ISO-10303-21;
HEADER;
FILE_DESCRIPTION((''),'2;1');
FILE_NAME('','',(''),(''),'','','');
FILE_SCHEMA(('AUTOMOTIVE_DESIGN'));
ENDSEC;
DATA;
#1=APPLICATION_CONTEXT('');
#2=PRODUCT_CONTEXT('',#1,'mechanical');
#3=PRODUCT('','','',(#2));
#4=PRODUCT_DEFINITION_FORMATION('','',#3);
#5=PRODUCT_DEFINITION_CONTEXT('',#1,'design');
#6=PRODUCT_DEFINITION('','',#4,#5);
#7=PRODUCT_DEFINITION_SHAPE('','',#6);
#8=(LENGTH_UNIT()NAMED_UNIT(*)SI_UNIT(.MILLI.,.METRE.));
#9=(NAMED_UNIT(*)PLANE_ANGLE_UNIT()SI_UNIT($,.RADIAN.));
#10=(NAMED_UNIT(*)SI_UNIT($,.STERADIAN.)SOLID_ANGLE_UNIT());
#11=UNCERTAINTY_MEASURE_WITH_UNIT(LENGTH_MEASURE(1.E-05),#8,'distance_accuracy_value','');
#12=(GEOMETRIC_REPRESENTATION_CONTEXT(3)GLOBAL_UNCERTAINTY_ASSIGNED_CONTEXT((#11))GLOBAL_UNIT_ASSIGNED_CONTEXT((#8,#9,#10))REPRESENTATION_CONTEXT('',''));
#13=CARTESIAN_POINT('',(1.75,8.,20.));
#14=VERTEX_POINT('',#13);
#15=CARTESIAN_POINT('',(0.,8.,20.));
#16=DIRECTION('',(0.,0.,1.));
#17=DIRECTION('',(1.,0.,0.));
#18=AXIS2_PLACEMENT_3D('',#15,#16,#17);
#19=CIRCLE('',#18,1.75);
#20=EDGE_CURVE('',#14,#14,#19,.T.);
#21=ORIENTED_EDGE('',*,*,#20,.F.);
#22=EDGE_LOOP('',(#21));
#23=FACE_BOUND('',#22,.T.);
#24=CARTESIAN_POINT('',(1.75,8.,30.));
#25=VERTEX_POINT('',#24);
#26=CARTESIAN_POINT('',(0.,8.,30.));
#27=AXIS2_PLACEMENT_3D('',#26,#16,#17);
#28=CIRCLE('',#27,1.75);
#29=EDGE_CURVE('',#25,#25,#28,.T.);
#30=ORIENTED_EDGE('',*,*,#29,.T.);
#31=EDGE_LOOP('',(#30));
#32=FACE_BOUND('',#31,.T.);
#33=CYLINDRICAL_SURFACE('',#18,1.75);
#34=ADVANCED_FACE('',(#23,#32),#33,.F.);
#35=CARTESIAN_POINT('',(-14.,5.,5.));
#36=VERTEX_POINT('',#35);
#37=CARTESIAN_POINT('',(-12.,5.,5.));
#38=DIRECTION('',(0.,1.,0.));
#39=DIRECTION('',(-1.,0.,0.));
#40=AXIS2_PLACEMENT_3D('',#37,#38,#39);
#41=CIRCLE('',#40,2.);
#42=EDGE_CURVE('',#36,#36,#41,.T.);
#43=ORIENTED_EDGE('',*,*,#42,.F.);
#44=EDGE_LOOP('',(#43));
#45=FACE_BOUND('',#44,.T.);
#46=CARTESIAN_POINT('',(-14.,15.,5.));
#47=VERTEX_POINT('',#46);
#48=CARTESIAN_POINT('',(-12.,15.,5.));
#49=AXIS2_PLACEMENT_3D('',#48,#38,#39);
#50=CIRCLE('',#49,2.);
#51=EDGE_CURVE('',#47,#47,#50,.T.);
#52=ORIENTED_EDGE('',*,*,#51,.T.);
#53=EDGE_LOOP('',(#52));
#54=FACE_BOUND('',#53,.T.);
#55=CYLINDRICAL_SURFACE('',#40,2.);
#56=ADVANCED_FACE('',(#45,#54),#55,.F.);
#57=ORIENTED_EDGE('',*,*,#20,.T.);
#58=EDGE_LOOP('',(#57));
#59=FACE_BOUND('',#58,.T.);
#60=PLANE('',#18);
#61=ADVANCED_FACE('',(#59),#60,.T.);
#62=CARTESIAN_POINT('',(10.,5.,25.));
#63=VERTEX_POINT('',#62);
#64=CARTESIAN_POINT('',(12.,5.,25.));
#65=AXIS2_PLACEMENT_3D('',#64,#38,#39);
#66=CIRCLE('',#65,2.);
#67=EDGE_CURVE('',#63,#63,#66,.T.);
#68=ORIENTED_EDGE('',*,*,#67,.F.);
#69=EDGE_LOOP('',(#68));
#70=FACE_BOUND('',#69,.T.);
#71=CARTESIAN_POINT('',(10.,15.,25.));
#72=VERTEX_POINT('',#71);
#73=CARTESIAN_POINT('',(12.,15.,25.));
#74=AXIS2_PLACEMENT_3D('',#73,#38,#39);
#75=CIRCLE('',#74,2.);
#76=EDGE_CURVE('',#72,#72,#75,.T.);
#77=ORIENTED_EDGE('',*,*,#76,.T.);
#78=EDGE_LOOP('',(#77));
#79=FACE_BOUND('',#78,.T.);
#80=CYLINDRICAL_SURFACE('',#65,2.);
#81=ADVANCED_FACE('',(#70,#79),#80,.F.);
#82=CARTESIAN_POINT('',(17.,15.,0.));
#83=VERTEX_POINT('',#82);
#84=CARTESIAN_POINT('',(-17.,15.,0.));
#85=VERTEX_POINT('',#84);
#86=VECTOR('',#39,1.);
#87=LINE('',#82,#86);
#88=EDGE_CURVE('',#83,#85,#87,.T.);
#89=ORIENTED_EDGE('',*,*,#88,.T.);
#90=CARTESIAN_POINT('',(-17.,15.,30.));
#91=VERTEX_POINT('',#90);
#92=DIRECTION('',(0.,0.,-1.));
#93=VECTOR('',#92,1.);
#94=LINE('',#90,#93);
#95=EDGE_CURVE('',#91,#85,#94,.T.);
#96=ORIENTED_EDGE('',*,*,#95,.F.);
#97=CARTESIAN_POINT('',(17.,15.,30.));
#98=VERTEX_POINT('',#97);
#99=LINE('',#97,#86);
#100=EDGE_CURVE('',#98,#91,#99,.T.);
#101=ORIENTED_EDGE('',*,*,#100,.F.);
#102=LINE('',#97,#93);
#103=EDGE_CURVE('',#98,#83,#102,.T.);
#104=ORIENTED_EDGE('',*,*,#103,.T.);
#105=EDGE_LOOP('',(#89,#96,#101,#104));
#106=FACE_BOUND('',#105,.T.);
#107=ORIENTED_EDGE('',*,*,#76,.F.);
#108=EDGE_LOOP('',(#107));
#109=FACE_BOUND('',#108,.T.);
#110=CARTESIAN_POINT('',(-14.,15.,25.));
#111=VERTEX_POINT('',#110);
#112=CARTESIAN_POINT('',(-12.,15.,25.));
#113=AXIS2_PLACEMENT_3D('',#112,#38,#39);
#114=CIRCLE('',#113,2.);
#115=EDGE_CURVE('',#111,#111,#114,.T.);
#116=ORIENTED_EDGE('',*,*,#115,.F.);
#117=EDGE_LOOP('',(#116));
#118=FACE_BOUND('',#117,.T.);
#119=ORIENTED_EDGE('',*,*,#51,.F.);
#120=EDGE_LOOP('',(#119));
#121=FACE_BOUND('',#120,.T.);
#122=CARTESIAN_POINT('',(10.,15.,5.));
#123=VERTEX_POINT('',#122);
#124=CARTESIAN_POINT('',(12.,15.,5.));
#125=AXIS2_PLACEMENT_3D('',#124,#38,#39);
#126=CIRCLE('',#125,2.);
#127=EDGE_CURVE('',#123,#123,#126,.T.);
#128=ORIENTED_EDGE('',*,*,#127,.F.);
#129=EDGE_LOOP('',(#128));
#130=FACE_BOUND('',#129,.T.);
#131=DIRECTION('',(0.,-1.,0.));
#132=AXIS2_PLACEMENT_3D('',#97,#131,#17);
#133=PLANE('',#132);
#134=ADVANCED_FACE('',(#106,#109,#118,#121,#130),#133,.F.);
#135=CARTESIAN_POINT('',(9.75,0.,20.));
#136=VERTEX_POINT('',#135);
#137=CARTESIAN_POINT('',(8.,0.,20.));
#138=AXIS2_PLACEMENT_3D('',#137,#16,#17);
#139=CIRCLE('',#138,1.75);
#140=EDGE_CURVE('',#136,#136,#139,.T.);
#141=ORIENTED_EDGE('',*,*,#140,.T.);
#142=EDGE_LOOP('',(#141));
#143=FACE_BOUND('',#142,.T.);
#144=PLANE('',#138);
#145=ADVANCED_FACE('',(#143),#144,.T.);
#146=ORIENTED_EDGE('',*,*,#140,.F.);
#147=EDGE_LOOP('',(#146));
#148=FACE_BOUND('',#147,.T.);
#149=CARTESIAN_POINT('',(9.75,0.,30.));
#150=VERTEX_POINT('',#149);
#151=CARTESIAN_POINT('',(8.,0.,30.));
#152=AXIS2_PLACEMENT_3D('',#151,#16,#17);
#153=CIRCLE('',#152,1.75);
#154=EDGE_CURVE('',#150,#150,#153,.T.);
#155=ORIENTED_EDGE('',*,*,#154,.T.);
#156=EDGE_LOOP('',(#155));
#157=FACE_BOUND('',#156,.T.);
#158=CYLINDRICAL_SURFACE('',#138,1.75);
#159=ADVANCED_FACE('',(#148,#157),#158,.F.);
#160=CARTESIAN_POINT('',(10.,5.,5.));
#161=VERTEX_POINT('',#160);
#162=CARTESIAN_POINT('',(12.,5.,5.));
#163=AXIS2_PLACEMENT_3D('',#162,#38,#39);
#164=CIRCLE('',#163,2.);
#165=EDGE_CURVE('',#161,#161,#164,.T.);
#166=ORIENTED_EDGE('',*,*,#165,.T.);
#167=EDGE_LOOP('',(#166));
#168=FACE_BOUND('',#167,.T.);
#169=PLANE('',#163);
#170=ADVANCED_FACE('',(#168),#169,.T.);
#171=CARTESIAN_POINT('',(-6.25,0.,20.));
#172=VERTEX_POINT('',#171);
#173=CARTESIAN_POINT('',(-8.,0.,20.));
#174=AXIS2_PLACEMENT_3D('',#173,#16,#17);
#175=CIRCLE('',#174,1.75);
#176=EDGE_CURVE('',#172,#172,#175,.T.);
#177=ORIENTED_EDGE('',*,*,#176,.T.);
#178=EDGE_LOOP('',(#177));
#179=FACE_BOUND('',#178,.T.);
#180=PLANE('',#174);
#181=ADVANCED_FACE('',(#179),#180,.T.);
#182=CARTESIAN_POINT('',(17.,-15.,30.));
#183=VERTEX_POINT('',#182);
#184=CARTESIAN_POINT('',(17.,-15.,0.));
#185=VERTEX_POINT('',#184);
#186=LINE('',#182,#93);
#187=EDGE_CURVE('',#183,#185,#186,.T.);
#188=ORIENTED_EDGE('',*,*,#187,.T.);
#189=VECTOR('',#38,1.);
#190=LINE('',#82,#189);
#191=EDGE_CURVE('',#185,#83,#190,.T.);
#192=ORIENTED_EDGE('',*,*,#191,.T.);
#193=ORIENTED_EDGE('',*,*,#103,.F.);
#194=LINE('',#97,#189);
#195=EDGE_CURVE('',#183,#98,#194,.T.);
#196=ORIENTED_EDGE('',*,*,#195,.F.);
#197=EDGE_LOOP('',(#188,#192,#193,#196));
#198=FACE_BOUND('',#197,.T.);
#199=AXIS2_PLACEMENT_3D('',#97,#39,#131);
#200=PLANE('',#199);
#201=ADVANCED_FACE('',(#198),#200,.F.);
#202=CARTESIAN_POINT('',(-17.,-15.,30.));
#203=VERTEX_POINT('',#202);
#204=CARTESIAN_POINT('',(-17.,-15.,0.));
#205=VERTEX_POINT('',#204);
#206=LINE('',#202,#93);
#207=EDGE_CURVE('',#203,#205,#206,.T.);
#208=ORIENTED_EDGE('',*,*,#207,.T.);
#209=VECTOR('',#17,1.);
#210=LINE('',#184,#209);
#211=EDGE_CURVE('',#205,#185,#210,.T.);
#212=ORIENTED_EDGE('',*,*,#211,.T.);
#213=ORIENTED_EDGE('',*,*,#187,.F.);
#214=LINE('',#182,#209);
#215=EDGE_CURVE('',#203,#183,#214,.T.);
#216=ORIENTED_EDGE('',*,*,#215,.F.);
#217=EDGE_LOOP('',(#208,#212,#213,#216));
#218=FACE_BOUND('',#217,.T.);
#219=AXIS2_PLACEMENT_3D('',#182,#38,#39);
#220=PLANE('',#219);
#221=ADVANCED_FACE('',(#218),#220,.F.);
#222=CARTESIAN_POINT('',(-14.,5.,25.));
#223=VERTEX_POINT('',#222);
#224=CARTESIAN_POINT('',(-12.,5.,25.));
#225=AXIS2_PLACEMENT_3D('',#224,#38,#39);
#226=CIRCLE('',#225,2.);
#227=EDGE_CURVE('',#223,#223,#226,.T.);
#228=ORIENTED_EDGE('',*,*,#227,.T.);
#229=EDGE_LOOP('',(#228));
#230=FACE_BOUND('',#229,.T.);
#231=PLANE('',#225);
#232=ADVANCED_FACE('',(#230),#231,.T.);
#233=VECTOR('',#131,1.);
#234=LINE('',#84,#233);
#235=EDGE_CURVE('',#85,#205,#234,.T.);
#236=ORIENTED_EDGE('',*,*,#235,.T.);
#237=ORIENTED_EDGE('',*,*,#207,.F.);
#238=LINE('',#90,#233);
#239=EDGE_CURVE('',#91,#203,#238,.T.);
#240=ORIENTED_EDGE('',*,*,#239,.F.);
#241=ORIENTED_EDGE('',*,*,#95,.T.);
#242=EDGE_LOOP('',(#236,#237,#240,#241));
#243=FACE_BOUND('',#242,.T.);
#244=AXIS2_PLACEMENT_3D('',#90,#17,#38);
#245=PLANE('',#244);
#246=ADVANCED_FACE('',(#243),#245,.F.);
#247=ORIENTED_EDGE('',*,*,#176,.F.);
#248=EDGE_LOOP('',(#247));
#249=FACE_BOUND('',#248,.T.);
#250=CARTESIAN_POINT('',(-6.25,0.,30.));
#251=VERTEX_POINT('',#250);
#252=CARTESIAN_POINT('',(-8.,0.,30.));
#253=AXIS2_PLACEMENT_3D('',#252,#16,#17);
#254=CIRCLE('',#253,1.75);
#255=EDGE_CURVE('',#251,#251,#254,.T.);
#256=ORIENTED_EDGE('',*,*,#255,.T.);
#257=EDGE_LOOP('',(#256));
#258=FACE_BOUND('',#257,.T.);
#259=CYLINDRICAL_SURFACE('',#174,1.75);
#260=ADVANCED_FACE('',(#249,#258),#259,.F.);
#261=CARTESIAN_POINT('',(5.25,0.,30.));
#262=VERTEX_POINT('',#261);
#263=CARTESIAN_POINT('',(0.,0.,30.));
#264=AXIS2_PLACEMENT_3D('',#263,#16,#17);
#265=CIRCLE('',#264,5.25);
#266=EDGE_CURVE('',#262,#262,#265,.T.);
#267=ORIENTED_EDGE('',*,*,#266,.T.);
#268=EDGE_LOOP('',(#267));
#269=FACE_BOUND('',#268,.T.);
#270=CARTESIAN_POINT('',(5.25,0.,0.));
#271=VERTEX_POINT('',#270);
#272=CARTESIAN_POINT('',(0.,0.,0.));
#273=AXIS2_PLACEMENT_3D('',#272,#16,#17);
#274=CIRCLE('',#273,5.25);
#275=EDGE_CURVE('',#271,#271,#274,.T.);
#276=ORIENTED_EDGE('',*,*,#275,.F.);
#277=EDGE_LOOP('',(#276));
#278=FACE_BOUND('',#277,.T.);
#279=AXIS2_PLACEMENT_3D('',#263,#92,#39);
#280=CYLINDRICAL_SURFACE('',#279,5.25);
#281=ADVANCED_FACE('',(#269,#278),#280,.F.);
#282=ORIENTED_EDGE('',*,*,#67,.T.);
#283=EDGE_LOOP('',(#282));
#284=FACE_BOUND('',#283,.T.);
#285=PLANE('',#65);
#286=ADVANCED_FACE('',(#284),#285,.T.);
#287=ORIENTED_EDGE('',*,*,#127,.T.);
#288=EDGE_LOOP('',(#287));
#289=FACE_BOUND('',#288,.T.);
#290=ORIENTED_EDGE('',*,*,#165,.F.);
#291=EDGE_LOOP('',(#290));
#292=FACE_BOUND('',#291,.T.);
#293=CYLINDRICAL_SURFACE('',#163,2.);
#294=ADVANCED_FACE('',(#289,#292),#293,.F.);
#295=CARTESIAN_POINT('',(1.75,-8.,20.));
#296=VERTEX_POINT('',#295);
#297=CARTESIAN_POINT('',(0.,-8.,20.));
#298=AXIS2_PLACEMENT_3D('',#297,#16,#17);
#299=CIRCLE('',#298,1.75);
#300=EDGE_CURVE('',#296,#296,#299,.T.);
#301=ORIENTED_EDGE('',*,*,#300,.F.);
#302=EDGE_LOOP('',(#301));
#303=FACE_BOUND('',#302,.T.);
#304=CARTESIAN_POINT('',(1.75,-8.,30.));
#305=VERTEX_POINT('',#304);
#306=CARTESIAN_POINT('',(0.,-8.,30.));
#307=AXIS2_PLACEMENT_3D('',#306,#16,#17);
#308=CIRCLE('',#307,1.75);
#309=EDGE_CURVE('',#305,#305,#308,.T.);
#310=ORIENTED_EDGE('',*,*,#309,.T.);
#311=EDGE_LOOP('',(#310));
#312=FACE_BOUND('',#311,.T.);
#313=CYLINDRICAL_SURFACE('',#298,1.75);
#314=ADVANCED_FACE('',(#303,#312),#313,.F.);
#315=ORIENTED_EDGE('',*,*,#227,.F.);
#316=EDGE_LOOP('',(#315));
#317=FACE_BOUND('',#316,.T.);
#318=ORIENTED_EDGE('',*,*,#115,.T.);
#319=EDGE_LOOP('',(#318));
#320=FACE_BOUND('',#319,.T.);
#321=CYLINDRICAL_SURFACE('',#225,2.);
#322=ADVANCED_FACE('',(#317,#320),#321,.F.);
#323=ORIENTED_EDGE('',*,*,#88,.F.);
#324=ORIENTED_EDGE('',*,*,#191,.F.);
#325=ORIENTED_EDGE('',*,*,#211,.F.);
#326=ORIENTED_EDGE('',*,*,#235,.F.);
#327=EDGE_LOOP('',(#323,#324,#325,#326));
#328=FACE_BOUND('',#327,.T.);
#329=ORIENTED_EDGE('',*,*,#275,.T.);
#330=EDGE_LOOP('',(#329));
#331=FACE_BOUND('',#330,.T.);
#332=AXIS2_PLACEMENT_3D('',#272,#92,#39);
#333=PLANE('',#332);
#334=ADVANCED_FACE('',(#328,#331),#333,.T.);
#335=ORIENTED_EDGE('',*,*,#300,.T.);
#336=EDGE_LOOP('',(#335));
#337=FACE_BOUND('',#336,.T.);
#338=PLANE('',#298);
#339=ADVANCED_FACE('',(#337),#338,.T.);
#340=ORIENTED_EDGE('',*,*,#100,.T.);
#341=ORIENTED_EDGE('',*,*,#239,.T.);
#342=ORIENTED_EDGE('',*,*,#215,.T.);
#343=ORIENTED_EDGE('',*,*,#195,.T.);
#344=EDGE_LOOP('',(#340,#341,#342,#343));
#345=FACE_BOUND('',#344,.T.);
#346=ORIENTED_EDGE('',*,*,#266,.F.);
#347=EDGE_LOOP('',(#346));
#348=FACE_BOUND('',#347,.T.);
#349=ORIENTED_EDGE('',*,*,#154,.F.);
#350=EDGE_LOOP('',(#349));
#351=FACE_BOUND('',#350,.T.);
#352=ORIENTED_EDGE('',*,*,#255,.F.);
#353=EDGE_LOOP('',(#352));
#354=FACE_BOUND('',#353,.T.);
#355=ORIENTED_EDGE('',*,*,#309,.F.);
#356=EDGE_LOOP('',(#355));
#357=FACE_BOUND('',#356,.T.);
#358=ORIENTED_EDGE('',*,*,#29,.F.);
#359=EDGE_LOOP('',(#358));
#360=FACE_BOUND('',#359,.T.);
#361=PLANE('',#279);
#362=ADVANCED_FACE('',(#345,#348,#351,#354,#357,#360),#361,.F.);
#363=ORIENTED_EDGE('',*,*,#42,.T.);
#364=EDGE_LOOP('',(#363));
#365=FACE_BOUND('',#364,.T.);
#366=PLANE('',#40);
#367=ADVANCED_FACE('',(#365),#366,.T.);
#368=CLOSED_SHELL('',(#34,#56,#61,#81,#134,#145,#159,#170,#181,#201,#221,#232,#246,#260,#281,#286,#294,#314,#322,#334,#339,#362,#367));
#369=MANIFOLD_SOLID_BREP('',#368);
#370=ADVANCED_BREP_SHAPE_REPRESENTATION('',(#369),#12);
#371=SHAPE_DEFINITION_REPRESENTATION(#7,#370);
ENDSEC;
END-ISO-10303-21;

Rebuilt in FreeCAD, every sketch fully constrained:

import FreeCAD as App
import Part
import Sketcher

doc = App.newDocument("Part")
params = doc.addObject("Spreadsheet::Sheet", "Params")
for row, (alias, value) in enumerate([
    ("sketch1_diameter", "10.5 mm"),
    ("sketch1_width", "34 mm"),
    ("sketch1_height", "30 mm"),
    ("pad1_length", "30 mm"),
    ("sketch2_diameter", "3.5 mm"),
    ("pocket1_length", "10 mm"),
    ("sketch3_diameter", "4 mm"),
    ("pocket2_length", "10 mm"),
], start=1):
    params.set(f"A{row}", alias)
    params.set(f"B{row}", "=" + value)
    params.setAlias(f"B{row}", alias)

body = doc.addObject("PartDesign::Body", "Body")

# Sketch on XY plane
sketch1 = body.newObject("Sketcher::SketchObject", "Sketch")
sketch1.AttachmentSupport = (doc.getObject("XY_Plane"), [""])
sketch1.MapMode = "FlatFace"
sketch1.addGeometry([
    Part.LineSegment(App.Vector(-17, 15, 0), App.Vector(-17, -15, 0)),  # 0
    Part.LineSegment(App.Vector(-17, -15, 0), App.Vector(17, -15, 0)),  # 1
    Part.LineSegment(App.Vector(17, -15, 0), App.Vector(17, 15, 0)),  # 2
    Part.LineSegment(App.Vector(17, 15, 0), App.Vector(-17, 15, 0)),  # 3
    Part.Circle(App.Vector(0, 0, 0), App.Vector(0, 0, 1), 5),  # 4
], False)
sketch1.addConstraint([
    Sketcher.Constraint("Coincident", 0, 2, 1, 1),
    Sketcher.Constraint("Coincident", 1, 2, 2, 1),
    Sketcher.Constraint("Coincident", 2, 2, 3, 1),
    Sketcher.Constraint("Coincident", 3, 2, 0, 1),
    Sketcher.Constraint("Vertical", 0),
    Sketcher.Constraint("Horizontal", 1),
    Sketcher.Constraint("Vertical", 2),
    Sketcher.Constraint("Horizontal", 3),
    Sketcher.Constraint("Coincident", 4, 3, -1, 1),
    Sketcher.Constraint("Symmetric", 0, 2, 2, 2, -1, 1),
    Sketcher.Constraint("Diameter", 4, 10.5),
    Sketcher.Constraint("DistanceX", 1, 1, 1, 2, 34.0),
    Sketcher.Constraint("DistanceY", 0, 2, 0, 1, 30.0),
])
sketch1.setExpression("Constraints[10]", "Params.sketch1_diameter")
sketch1.setExpression("Constraints[11]", "Params.sketch1_width")
sketch1.setExpression("Constraints[12]", "Params.sketch1_height")
pad1 = body.newObject("PartDesign::Pad", "Pad")
pad1.Profile = sketch1
pad1.setExpression("Length", "Params.pad1_length")

# Sketch on XY plane
sketch2 = body.newObject("Sketcher::SketchObject", "Sketch001")
sketch2.AttachmentSupport = (doc.getObject("XY_Plane"), [""])
sketch2.MapMode = "FlatFace"
sketch2.AttachmentOffset = App.Placement(App.Vector(0, 0, 30), App.Rotation())
sketch2.addGeometry([
    Part.Circle(App.Vector(-8, 0, 0), App.Vector(0, 0, 1), 1.8),
    Part.Circle(App.Vector(0, 8, 0), App.Vector(0, 0, 1), 1.8),
    Part.Circle(App.Vector(8, 0, 0), App.Vector(0, 0, 1), 1.8),
    Part.Circle(App.Vector(0, -8, 0), App.Vector(0, 0, 1), 1.8),
], False)
sketch2.addConstraint([
    Sketcher.Constraint("Equal", 0, 1),
    Sketcher.Constraint("Equal", 1, 2),
    Sketcher.Constraint("Equal", 2, 3),
    Sketcher.Constraint("Symmetric", 0, 3, 2, 3, -1, 1),
    Sketcher.Constraint("Symmetric", 1, 3, 3, 3, -1, 1),
    Sketcher.Constraint("PointOnObject", 0, 3, -1),
    Sketcher.Constraint("PointOnObject", 1, 3, -2),
    Sketcher.Constraint("Diameter", 0, 3.5),
    Sketcher.Constraint("DistanceX", 0, 3, -1, 1, 8.0),
    Sketcher.Constraint("DistanceY", -1, 1, 1, 3, 8.0),
])
sketch2.setExpression("Constraints[7]", "Params.sketch2_diameter")
pocket1 = body.newObject("PartDesign::Pocket", "Pocket")
pocket1.Profile = sketch2
pocket1.setExpression("Length", "Params.pocket1_length")

# Sketch on XZ plane
sketch3 = body.newObject("Sketcher::SketchObject", "Sketch002")
sketch3.AttachmentSupport = (doc.getObject("XZ_Plane"), [""])
sketch3.MapMode = "FlatFace"
sketch3.AttachmentOffset = App.Placement(App.Vector(0, 0, -15), App.Rotation())
sketch3.addGeometry([
    Part.Circle(App.Vector(12, 25, 0), App.Vector(0, 0, 1), 2),
    Part.Circle(App.Vector(-12, 25, 0), App.Vector(0, 0, 1), 2),
    Part.Circle(App.Vector(-12, 5, 0), App.Vector(0, 0, 1), 2),
    Part.Circle(App.Vector(12, 5, 0), App.Vector(0, 0, 1), 2),
], False)
sketch3.addConstraint([
    Sketcher.Constraint("Equal", 0, 1),
    Sketcher.Constraint("Equal", 1, 2),
    Sketcher.Constraint("Equal", 2, 3),
    Sketcher.Constraint("Symmetric", 0, 3, 1, 3, -2),
    Sketcher.Constraint("Symmetric", 2, 3, 3, 3, -2),
    Sketcher.Constraint("Vertical", 1, 3, 2, 3),
    Sketcher.Constraint("Diameter", 0, 4.0),
    Sketcher.Constraint("DistanceX", -1, 1, 0, 3, 12.0),
    Sketcher.Constraint("DistanceY", -1, 1, 0, 3, 25.0),
    Sketcher.Constraint("DistanceY", -1, 1, 2, 3, 5.0),
])
sketch3.setExpression("Constraints[6]", "Params.sketch3_diameter")
pocket2 = body.newObject("PartDesign::Pocket", "Pocket001")
pocket2.Profile = sketch3
pocket2.setExpression("Length", "Params.pocket2_length")
pocket2.Reversed = True

doc.recompute()
